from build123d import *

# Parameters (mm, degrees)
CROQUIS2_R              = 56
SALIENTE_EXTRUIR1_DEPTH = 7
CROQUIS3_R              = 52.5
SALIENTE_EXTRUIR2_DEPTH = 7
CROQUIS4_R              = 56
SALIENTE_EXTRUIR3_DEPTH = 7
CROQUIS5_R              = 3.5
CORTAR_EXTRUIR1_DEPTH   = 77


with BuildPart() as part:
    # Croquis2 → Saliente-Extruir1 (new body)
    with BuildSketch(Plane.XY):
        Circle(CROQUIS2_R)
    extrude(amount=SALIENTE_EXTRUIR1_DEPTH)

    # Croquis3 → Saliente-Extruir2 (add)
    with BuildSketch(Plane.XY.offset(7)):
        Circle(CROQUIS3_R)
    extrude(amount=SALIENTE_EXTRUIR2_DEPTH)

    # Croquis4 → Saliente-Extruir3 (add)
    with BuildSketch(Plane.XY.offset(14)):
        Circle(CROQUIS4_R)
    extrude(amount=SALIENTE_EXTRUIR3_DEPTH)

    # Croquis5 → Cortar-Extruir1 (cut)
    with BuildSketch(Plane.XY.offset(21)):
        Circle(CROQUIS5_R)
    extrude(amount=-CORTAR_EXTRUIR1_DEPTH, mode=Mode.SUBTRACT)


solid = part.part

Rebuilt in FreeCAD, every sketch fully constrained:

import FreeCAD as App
import Part
import Sketcher
from FreeCAD import Vector

doc = App.newDocument("Part")
body = doc.addObject("PartDesign::Body", "Body")

# Sketch on XY plane
sketch1 = doc.addObject("Sketcher::SketchObject", "Sketch")
body.addObject(sketch1)
sketch1.AttachmentSupport = (doc.XY_Plane, [""])
sketch1.MapMode = "FlatFace"
sketch1.addGeometry(Part.Circle(Vector(0, 0, 0), Vector(0, 0, 1), 56), False)
sketch1.addConstraint(Sketcher.Constraint("Coincident", 0, 3, -1, 1))
sketch1.addConstraint(Sketcher.Constraint("Diameter", 0, 112.0))
pad1 = doc.addObject("PartDesign::Pad", "Pad")
body.addObject(pad1)
pad1.Profile = sketch1
pad1.Length = 7

# Sketch on XY plane
sketch2 = doc.addObject("Sketcher::SketchObject", "Sketch001")
body.addObject(sketch2)
sketch2.AttachmentSupport = (doc.XY_Plane, [""])
sketch2.MapMode = "FlatFace"
sketch2.AttachmentOffset = App.Placement(Vector(0, 0, 7), App.Rotation())
sketch2.addGeometry(Part.Circle(Vector(0, 0, 0), Vector(0, 0, 1), 52), False)
sketch2.addConstraint(Sketcher.Constraint("Coincident", 0, 3, -1, 1))
sketch2.addConstraint(Sketcher.Constraint("Diameter", 0, 105.0))
pad2 = doc.addObject("PartDesign::Pad", "Pad001")
body.addObject(pad2)
pad2.Profile = sketch2
pad2.Length = 7

# Sketch on XY plane
sketch3 = doc.addObject("Sketcher::SketchObject", "Sketch002")
body.addObject(sketch3)
sketch3.AttachmentSupport = (doc.XY_Plane, [""])
sketch3.MapMode = "FlatFace"
sketch3.AttachmentOffset = App.Placement(Vector(0, 0, 14), App.Rotation())
sketch3.addGeometry(Part.Circle(Vector(0, 0, 0), Vector(0, 0, 1), 56), False)
sketch3.addConstraint(Sketcher.Constraint("Coincident", 0, 3, -1, 1))
sketch3.addConstraint(Sketcher.Constraint("Diameter", 0, 112.0))
pad3 = doc.addObject("PartDesign::Pad", "Pad002")
body.addObject(pad3)
pad3.Profile = sketch3
pad3.Length = 7

# Sketch on XY plane
sketch4 = doc.addObject("Sketcher::SketchObject", "Sketch003")
body.addObject(sketch4)
sketch4.AttachmentSupport = (doc.XY_Plane, [""])
sketch4.MapMode = "FlatFace"
sketch4.AttachmentOffset = App.Placement(Vector(0, 0, 21), App.Rotation())
sketch4.addGeometry(Part.Circle(Vector(0, 0, 0), Vector(0, 0, 1), 3.5), False)
sketch4.addConstraint(Sketcher.Constraint("Coincident", 0, 3, -1, 1))
sketch4.addConstraint(Sketcher.Constraint("Diameter", 0, 7.0))
pocket1 = doc.addObject("PartDesign::Pocket", "Pocket")
body.addObject(pocket1)
pocket1.Profile = sketch4
pocket1.Length = 77

doc.recompute()
